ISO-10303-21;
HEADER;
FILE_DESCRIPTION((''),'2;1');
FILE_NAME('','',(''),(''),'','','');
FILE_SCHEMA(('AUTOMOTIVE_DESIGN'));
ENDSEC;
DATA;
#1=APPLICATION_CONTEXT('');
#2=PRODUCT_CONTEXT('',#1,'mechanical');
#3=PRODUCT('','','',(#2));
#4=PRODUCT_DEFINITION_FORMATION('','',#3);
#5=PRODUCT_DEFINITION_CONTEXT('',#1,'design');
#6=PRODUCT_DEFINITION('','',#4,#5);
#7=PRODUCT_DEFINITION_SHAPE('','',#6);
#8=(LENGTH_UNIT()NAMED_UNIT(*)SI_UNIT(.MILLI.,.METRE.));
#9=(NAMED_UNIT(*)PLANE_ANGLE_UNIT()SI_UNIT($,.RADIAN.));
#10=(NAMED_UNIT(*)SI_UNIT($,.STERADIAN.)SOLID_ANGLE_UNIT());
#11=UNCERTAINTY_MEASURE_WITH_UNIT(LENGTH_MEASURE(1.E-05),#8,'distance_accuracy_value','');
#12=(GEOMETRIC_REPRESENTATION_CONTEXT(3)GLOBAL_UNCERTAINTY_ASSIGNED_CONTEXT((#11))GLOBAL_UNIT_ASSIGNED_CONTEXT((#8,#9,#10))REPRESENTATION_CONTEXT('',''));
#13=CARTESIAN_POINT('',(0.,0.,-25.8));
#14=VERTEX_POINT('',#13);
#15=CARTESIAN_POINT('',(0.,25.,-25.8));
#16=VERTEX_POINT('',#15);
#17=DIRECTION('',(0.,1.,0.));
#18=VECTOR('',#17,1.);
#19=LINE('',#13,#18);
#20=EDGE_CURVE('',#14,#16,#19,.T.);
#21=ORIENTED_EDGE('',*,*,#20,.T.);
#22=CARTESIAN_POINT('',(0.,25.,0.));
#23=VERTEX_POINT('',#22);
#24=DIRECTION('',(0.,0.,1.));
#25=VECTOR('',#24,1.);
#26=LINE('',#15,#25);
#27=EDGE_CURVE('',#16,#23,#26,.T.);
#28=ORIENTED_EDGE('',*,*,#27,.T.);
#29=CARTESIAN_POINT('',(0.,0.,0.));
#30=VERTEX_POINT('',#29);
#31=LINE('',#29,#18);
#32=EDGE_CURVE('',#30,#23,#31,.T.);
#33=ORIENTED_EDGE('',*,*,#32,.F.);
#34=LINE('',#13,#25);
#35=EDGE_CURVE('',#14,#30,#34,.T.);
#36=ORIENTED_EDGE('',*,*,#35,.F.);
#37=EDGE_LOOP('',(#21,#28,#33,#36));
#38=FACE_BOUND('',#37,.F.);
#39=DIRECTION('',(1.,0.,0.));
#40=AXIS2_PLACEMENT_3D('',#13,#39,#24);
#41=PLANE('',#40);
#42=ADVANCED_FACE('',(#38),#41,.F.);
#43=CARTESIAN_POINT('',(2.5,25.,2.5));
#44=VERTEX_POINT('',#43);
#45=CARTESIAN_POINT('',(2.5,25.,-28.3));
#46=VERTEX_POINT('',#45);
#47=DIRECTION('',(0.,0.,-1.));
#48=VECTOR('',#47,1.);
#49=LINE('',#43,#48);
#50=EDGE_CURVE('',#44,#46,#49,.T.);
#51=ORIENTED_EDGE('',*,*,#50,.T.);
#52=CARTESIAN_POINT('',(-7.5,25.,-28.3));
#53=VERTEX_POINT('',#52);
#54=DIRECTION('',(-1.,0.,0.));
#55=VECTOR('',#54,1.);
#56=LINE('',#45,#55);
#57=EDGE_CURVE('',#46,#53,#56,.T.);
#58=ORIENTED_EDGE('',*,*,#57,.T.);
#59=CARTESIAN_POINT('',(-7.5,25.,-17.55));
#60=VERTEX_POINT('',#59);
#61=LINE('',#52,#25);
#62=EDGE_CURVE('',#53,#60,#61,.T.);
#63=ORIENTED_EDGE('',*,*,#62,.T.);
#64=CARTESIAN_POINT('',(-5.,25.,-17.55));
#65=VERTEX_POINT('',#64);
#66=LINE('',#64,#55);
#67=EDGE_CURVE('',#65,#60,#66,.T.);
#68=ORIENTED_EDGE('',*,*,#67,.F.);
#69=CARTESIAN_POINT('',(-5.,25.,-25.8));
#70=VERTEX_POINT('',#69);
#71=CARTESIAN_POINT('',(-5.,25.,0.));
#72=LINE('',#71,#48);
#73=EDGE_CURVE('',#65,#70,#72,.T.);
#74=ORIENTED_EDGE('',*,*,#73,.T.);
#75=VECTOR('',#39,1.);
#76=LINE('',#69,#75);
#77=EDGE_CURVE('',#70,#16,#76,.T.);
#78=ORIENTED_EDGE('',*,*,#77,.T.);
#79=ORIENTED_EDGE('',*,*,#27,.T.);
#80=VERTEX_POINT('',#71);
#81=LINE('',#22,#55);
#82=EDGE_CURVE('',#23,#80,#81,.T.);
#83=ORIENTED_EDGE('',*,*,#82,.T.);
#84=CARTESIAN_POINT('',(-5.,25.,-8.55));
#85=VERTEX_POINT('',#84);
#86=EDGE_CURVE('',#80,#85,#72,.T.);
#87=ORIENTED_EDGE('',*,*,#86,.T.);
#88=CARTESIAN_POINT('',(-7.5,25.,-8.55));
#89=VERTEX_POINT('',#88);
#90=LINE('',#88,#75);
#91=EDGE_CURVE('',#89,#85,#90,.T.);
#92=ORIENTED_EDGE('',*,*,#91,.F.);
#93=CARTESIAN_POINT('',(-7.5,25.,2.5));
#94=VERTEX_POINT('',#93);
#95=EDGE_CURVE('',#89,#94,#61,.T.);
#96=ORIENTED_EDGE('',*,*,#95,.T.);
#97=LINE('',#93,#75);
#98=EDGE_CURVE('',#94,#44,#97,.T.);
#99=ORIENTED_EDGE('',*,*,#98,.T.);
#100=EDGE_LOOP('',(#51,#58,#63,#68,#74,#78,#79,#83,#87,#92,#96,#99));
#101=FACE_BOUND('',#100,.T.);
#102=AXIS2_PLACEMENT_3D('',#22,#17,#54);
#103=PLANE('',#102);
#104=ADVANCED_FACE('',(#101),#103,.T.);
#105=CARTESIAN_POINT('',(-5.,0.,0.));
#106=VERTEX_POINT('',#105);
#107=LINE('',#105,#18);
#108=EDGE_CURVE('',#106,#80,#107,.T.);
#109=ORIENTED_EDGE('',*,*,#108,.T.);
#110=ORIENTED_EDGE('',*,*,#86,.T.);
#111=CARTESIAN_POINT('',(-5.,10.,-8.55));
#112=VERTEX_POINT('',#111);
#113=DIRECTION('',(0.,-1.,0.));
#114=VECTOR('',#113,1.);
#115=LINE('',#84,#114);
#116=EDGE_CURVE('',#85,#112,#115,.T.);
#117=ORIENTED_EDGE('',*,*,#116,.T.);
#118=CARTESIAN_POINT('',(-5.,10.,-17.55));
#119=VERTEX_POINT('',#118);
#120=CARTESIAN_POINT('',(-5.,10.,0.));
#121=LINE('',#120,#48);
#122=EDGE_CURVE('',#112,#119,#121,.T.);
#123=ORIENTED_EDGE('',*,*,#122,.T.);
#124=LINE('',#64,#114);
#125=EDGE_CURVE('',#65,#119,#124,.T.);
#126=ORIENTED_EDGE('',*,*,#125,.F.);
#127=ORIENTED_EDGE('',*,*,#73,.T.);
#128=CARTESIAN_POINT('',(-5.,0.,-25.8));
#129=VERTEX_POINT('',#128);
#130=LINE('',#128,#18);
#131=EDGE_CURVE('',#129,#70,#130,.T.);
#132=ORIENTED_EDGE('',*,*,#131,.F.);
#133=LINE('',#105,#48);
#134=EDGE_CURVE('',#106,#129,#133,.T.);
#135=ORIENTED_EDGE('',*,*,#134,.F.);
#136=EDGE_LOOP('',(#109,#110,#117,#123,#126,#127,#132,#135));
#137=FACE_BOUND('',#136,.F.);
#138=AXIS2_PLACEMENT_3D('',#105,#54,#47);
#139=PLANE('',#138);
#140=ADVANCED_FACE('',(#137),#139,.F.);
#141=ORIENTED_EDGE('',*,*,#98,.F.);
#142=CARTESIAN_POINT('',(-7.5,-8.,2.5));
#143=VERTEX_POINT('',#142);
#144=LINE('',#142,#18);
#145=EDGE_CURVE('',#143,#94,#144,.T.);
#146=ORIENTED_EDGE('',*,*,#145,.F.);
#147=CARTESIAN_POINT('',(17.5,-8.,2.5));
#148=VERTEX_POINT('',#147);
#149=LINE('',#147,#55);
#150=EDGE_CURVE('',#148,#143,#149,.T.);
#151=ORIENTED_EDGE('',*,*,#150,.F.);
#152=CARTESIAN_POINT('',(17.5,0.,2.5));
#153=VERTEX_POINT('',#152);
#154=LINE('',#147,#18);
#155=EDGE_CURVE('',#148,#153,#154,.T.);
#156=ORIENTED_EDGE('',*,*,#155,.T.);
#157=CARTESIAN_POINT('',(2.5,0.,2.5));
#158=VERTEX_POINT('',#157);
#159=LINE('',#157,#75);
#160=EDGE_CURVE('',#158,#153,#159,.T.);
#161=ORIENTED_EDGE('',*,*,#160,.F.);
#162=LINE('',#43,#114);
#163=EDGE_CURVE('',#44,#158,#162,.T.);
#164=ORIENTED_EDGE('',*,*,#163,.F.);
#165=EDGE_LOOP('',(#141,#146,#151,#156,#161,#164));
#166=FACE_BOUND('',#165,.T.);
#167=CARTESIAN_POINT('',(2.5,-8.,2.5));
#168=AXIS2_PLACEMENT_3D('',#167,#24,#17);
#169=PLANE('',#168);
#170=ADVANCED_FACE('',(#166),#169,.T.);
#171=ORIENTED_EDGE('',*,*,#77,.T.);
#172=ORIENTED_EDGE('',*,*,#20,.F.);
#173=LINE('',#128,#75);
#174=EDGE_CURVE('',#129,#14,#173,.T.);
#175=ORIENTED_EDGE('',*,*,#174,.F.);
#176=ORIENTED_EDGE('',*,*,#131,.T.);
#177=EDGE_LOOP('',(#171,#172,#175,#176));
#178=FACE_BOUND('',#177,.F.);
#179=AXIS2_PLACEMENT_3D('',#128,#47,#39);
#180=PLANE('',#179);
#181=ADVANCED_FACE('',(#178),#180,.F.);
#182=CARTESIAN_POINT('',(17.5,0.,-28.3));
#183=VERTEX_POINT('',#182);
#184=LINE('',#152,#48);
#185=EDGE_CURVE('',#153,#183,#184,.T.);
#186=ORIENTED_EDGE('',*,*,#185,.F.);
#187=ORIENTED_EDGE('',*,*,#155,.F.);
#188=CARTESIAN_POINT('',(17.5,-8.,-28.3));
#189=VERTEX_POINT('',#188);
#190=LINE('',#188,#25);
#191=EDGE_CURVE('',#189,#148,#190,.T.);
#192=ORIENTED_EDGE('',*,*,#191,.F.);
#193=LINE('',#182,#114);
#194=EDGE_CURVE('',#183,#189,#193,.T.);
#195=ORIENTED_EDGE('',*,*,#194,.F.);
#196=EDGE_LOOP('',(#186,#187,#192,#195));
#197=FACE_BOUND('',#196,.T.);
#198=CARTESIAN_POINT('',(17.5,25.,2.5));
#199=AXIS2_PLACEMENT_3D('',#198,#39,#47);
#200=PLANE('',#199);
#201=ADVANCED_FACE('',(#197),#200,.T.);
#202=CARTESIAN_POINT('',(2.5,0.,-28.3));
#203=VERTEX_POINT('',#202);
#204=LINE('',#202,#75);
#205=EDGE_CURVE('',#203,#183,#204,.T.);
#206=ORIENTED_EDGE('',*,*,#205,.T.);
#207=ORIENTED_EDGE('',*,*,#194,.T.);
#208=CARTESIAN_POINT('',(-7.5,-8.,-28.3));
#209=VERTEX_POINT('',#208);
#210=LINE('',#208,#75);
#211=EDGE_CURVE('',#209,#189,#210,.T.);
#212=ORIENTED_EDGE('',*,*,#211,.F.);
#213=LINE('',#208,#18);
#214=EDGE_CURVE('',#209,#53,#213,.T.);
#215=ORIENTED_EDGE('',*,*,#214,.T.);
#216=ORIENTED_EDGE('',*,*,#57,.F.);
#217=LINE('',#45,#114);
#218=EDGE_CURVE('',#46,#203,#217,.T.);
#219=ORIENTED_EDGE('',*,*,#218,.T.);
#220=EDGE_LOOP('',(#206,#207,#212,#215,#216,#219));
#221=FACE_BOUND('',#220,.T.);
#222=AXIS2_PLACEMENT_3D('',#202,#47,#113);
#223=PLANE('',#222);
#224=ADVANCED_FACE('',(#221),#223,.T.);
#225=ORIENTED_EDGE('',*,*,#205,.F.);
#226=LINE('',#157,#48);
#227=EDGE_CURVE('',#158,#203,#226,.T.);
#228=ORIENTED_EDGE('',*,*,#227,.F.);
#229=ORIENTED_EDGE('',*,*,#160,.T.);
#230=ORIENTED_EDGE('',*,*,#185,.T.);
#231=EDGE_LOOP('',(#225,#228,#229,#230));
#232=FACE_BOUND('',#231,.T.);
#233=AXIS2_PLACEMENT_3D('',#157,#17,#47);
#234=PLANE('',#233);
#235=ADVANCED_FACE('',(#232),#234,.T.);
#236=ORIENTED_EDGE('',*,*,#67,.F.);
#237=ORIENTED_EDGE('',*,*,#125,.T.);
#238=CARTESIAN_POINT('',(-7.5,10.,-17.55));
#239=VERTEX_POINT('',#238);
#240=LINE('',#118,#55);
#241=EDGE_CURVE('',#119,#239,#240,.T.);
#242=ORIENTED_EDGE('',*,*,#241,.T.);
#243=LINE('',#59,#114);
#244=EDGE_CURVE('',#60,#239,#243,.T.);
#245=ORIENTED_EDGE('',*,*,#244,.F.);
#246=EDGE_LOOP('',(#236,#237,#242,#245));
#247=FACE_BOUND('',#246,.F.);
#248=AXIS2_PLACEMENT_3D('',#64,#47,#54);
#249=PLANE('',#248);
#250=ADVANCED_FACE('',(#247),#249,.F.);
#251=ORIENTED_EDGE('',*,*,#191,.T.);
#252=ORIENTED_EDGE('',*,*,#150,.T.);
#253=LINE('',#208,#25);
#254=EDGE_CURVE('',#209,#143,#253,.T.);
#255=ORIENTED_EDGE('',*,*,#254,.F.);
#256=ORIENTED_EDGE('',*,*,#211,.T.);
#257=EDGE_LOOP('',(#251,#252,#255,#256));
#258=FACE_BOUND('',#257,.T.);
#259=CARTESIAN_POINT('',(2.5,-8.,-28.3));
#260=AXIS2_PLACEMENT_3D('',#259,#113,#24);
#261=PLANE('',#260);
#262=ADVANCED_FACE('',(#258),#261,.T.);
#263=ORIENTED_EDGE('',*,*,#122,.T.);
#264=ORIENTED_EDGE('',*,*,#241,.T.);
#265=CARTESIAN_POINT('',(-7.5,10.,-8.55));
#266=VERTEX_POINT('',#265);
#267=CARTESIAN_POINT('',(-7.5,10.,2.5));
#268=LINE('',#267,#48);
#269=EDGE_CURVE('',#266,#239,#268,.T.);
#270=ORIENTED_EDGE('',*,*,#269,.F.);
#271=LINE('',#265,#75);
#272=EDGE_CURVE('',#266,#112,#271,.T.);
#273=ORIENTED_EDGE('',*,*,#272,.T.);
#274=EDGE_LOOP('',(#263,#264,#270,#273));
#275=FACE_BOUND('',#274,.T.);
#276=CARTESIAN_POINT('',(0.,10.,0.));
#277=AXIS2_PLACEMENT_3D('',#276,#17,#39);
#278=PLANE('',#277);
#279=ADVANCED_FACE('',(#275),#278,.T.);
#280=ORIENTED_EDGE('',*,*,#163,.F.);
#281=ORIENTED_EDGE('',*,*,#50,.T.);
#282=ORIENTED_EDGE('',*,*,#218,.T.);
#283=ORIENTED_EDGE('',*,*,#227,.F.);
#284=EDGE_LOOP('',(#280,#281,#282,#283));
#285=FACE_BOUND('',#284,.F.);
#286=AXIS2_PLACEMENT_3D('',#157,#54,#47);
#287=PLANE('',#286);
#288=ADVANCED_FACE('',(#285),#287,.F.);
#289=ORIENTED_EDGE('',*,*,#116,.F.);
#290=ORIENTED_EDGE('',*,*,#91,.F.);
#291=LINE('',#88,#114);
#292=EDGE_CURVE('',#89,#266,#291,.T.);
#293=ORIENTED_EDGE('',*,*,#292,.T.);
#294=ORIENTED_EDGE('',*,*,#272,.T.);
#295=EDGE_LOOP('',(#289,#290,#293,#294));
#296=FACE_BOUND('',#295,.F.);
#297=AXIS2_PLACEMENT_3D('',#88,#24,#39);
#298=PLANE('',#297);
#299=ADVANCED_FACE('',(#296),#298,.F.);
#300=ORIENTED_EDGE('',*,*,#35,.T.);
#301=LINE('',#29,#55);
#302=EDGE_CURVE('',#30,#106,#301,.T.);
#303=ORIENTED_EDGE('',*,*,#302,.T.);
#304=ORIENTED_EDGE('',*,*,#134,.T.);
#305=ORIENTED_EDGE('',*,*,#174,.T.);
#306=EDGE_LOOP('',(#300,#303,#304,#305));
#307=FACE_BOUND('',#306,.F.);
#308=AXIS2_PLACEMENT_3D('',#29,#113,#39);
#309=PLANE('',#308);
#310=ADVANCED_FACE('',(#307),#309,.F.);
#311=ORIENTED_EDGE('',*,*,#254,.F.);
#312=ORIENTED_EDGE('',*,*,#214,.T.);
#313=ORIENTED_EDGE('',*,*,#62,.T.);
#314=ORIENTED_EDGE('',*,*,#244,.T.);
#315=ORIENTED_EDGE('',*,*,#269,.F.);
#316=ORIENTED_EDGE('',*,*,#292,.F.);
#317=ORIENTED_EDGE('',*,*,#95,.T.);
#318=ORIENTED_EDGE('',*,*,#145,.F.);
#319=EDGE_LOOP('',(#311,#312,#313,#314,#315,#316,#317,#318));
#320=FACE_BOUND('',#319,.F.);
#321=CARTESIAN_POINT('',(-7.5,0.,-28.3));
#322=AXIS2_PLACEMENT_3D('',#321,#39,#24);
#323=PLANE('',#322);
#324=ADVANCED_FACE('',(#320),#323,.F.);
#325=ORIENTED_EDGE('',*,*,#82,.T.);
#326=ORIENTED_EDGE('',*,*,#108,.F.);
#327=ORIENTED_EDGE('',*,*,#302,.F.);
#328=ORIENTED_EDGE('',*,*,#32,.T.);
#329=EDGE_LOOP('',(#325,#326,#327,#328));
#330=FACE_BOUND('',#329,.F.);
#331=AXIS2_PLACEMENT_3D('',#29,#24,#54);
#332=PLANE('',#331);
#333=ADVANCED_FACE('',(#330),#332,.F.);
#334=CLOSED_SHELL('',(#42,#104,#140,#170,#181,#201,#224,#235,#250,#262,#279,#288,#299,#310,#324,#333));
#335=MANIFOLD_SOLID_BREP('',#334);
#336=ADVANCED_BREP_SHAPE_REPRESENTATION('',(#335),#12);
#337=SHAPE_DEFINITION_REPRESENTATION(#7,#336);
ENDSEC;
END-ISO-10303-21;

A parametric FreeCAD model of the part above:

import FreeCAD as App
import Part
import Sketcher

V = App.Vector
Q = App.Units.Quantity

doc = App.newDocument("Part")
params = doc.addObject("Spreadsheet::Sheet", "Params")
for row, (alias, value) in enumerate([
    ("sketch1_width", "5 mm"),
    ("sketch1_height", "25.8 mm"),
    ("pad1_length", "25 mm"),
    ("sketch2_width", "10 mm"),
    ("sketch2_height", "30.8 mm"),
    ("pad2_length", "8 mm"),
    ("sketch3_width", "8 mm"),
    ("sketch3_height", "30.8 mm"),
    ("pad3_length", "15 mm"),
    ("sketch4_height", "9 mm"),
    ("sketch4_width", "2.5 mm"),
    ("pocket1_length", "15 mm"),
], start=1):
    params.set(f"A{row}", alias)
    params.set(f"B{row}", "=" + value)
    params.setAlias(f"B{row}", alias)

body = doc.addObject("PartDesign::Body", "Body")

sketch1 = body.newObject("Sketcher::SketchObject", "Sketch")
sketch1.AttachmentSupport = (doc.getObject("XZ_Plane"), [""])
sketch1.MapMode = "FlatFace"
sketch1.addGeometry(Part.LineSegment(V(2.5, -28.3, 0), V(-7.5, -28.3, 0)), False)
sketch1.addGeometry(Part.LineSegment(V(-7.5, -28.3, 0), V(-7.5, 2.5, 0)), False)
sketch1.addGeometry(Part.LineSegment(V(-7.5, 2.5, 0), V(2.5, 2.5, 0)), False)
sketch1.addGeometry(Part.LineSegment(V(2.5, 2.5, 0), V(2.5, -28.3, 0)), False)
sketch1.addGeometry(Part.LineSegment(V(0, -25.8, 0), V(0, 0, 0)), False)
sketch1.addGeometry(Part.LineSegment(V(0, 0, 0), V(-5, 0, 0)), False)
sketch1.addGeometry(Part.LineSegment(V(-5, 0, 0), V(-5, -25.8, 0)), False)
sketch1.addGeometry(Part.LineSegment(V(-5, -25.8, 0), V(0, -25.8, 0)), False)
sketch1.addConstraint(Sketcher.Constraint("Coincident", 0, 2, 1, 1))
sketch1.addConstraint(Sketcher.Constraint("Coincident", 1, 2, 2, 1))
sketch1.addConstraint(Sketcher.Constraint("Coincident", 2, 2, 3, 1))
sketch1.addConstraint(Sketcher.Constraint("Coincident", 3, 2, 0, 1))
sketch1.addConstraint(Sketcher.Constraint("Coincident", 4, 2, 5, 1))
sketch1.addConstraint(Sketcher.Constraint("Coincident", 5, 2, 6, 1))
sketch1.addConstraint(Sketcher.Constraint("Coincident", 6, 2, 7, 1))
sketch1.addConstraint(Sketcher.Constraint("Coincident", 7, 2, 4, 1))
sketch1.addConstraint(Sketcher.Constraint("Horizontal", 0))
sketch1.addConstraint(Sketcher.Constraint("Vertical", 1))
sketch1.addConstraint(Sketcher.Constraint("Horizontal", 2))
sketch1.addConstraint(Sketcher.Constraint("Vertical", 3))
sketch1.addConstraint(Sketcher.Constraint("Vertical", 4))
sketch1.addConstraint(Sketcher.Constraint("Horizontal", 5))
sketch1.addConstraint(Sketcher.Constraint("Vertical", 6))
sketch1.addConstraint(Sketcher.Constraint("Horizontal", 7))
sketch1.addConstraint(Sketcher.Constraint("Coincident", 4, 2, -1, 1))
sketch1.addConstraint(Sketcher.Constraint("DistanceX", 5, 2, 5, 1, Q("5 mm")))
sketch1.addConstraint(Sketcher.Constraint("DistanceY", 4, 1, 4, 2, Q("25.8 mm")))
sketch1.addConstraint(Sketcher.Constraint("DistanceY", -1, 1, 1, 2, Q("2.5 mm")))
sketch1.addConstraint(Sketcher.Constraint("DistanceX", -1, 1, 2, 2, Q("2.5 mm")))
sketch1.addConstraint(Sketcher.Constraint("DistanceX", 1, 2, 5, 2, Q("2.5 mm")))
sketch1.addConstraint(Sketcher.Constraint("DistanceY", 0, 2, 6, 2, Q("2.5 mm")))
sketch1.setExpression("Constraints[17]", "Params.sketch1_width")
sketch1.setExpression("Constraints[18]", "Params.sketch1_height")
pad1 = body.newObject("PartDesign::Pad", "Pad")
pad1.Profile = sketch1
pad1.setExpression("Length", "Params.pad1_length")
pad1.Reversed = True

sketch2 = body.newObject("Sketcher::SketchObject", "Sketch001")
sketch2.AttachmentSupport = (doc.getObject("XZ_Plane"), [""])
sketch2.MapMode = "FlatFace"
sketch2.addGeometry(Part.LineSegment(V(-7.5, -28.3, 0), V(2.5, -28.3, 0)), False)
sketch2.addGeometry(Part.LineSegment(V(2.5, -28.3, 0), V(2.5, 2.5, 0)), False)
sketch2.addGeometry(Part.LineSegment(V(2.5, 2.5, 0), V(-7.5, 2.5, 0)), False)
sketch2.addGeometry(Part.LineSegment(V(-7.5, 2.5, 0), V(-7.5, -28.3, 0)), False)
sketch2.addConstraint(Sketcher.Constraint("Coincident", 0, 2, 1, 1))
sketch2.addConstraint(Sketcher.Constraint("Coincident", 1, 2, 2, 1))
sketch2.addConstraint(Sketcher.Constraint("Coincident", 2, 2, 3, 1))
sketch2.addConstraint(Sketcher.Constraint("Coincident", 3, 2, 0, 1))
sketch2.addConstraint(Sketcher.Constraint("Horizontal", 0))
sketch2.addConstraint(Sketcher.Constraint("Vertical", 1))
sketch2.addConstraint(Sketcher.Constraint("Horizontal", 2))
sketch2.addConstraint(Sketcher.Constraint("Vertical", 3))
sketch2.addConstraint(Sketcher.Constraint("DistanceX", 0, 1, 0, 2, Q("10 mm")))
sketch2.addConstraint(Sketcher.Constraint("DistanceY", 1, 1, 1, 2, Q("30.8 mm")))
sketch2.addConstraint(Sketcher.Constraint("DistanceX", -1, 1, 0, 2, Q("2.5 mm")))
sketch2.addConstraint(Sketcher.Constraint("DistanceY", 0, 2, -1, 1, Q("28.3 mm")))
sketch2.setExpression("Constraints[8]", "Params.sketch2_width")
sketch2.setExpression("Constraints[9]", "Params.sketch2_height")
pad2 = body.newObject("PartDesign::Pad", "Pad001")
pad2.Profile = sketch2
pad2.setExpression("Length", "Params.pad2_length")

sketch3 = body.newObject("Sketcher::SketchObject", "Sketch002")
sketch3.AttachmentSupport = (doc.getObject("YZ_Plane"), [""])
sketch3.MapMode = "FlatFace"
sketch3.AttachmentOffset = App.Placement(V(0, 0, 2.5), App.Rotation())
sketch3.addGeometry(Part.LineSegment(V(-8, 2.5, 0), V(-8, -28.3, 0)), False)
sketch3.addGeometry(Part.LineSegment(V(-8, -28.3, 0), V(0, -28.3, 0)), False)
sketch3.addGeometry(Part.LineSegment(V(0, -28.3, 0), V(0, 2.5, 0)), False)
sketch3.addGeometry(Part.LineSegment(V(0, 2.5, 0), V(-8, 2.5, 0)), False)
sketch3.addConstraint(Sketcher.Constraint("Coincident", 0, 2, 1, 1))
sketch3.addConstraint(Sketcher.Constraint("Coincident", 1, 2, 2, 1))
sketch3.addConstraint(Sketcher.Constraint("Coincident", 2, 2, 3, 1))
sketch3.addConstraint(Sketcher.Constraint("Coincident", 3, 2, 0, 1))
sketch3.addConstraint(Sketcher.Constraint("Vertical", 0))
sketch3.addConstraint(Sketcher.Constraint("Horizontal", 1))
sketch3.addConstraint(Sketcher.Constraint("Vertical", 2))
sketch3.addConstraint(Sketcher.Constraint("Horizontal", 3))
sketch3.addConstraint(Sketcher.Constraint("PointOnObject", 1, 2, -2))
sketch3.addConstraint(Sketcher.Constraint("DistanceX", 1, 1, 1, 2, Q("8 mm")))
sketch3.addConstraint(Sketcher.Constraint("DistanceY", 0, 2, 0, 1, Q("30.8 mm")))
sketch3.addConstraint(Sketcher.Constraint("DistanceY", 0, 2, -1, 1, Q("28.3 mm")))
sketch3.setExpression("Constraints[9]", "Params.sketch3_width")
sketch3.setExpression("Constraints[10]", "Params.sketch3_height")
pad3 = body.newObject("PartDesign::Pad", "Pad002")
pad3.Profile = sketch3
pad3.setExpression("Length", "Params.pad3_length")

sketch4 = body.newObject("Sketcher::SketchObject", "Sketch003")
sketch4.AttachmentSupport = (doc.getObject("XZ_Plane"), [""])
sketch4.MapMode = "FlatFace"
sketch4.AttachmentOffset = App.Placement(V(0, 0, -25), App.Rotation())
sketch4.addGeometry(Part.LineSegment(V(-7.5, -8.55, 0), V(-5, -8.55, 0)), False)
sketch4.addGeometry(Part.LineSegment(V(-5, -8.55, 0), V(-5, -17.55, 0)), False)
sketch4.addGeometry(Part.LineSegment(V(-5, -17.55, 0), V(-7.5, -17.55, 0)), False)
sketch4.addGeometry(Part.LineSegment(V(-7.5, -17.55, 0), V(-7.5, -8.55, 0)), False)
sketch4.addConstraint(Sketcher.Constraint("Coincident", 0, 2, 1, 1))
sketch4.addConstraint(Sketcher.Constraint("Coincident", 1, 2, 2, 1))
sketch4.addConstraint(Sketcher.Constraint("Coincident", 2, 2, 3, 1))
sketch4.addConstraint(Sketcher.Constraint("Coincident", 3, 2, 0, 1))
sketch4.addConstraint(Sketcher.Constraint("Horizontal", 0))
sketch4.addConstraint(Sketcher.Constraint("Vertical", 1))
sketch4.addConstraint(Sketcher.Constraint("Horizontal", 2))
sketch4.addConstraint(Sketcher.Constraint("Vertical", 3))
sketch4.addConstraint(Sketcher.Constraint("DistanceY", 1, 2, 1, 1, Q("9 mm")))
sketch4.addConstraint(Sketcher.Constraint("DistanceX", 0, 1, 0, 2, Q("2.5 mm")))
sketch4.addConstraint(Sketcher.Constraint("DistanceX", 0, 2, -1, 1, Q("5 mm")))
sketch4.addConstraint(Sketcher.Constraint("DistanceY", 0, 2, -1, 1, Q("8.55 mm")))
sketch4.setExpression("Constraints[8]", "Params.sketch4_height")
sketch4.setExpression("Constraints[9]", "Params.sketch4_width")
pocket1 = body.newObject("PartDesign::Pocket", "Pocket")
pocket1.Profile = sketch4
pocket1.setExpression("Length", "Params.pocket1_length")
pocket1.Reversed = True

doc.recompute()
